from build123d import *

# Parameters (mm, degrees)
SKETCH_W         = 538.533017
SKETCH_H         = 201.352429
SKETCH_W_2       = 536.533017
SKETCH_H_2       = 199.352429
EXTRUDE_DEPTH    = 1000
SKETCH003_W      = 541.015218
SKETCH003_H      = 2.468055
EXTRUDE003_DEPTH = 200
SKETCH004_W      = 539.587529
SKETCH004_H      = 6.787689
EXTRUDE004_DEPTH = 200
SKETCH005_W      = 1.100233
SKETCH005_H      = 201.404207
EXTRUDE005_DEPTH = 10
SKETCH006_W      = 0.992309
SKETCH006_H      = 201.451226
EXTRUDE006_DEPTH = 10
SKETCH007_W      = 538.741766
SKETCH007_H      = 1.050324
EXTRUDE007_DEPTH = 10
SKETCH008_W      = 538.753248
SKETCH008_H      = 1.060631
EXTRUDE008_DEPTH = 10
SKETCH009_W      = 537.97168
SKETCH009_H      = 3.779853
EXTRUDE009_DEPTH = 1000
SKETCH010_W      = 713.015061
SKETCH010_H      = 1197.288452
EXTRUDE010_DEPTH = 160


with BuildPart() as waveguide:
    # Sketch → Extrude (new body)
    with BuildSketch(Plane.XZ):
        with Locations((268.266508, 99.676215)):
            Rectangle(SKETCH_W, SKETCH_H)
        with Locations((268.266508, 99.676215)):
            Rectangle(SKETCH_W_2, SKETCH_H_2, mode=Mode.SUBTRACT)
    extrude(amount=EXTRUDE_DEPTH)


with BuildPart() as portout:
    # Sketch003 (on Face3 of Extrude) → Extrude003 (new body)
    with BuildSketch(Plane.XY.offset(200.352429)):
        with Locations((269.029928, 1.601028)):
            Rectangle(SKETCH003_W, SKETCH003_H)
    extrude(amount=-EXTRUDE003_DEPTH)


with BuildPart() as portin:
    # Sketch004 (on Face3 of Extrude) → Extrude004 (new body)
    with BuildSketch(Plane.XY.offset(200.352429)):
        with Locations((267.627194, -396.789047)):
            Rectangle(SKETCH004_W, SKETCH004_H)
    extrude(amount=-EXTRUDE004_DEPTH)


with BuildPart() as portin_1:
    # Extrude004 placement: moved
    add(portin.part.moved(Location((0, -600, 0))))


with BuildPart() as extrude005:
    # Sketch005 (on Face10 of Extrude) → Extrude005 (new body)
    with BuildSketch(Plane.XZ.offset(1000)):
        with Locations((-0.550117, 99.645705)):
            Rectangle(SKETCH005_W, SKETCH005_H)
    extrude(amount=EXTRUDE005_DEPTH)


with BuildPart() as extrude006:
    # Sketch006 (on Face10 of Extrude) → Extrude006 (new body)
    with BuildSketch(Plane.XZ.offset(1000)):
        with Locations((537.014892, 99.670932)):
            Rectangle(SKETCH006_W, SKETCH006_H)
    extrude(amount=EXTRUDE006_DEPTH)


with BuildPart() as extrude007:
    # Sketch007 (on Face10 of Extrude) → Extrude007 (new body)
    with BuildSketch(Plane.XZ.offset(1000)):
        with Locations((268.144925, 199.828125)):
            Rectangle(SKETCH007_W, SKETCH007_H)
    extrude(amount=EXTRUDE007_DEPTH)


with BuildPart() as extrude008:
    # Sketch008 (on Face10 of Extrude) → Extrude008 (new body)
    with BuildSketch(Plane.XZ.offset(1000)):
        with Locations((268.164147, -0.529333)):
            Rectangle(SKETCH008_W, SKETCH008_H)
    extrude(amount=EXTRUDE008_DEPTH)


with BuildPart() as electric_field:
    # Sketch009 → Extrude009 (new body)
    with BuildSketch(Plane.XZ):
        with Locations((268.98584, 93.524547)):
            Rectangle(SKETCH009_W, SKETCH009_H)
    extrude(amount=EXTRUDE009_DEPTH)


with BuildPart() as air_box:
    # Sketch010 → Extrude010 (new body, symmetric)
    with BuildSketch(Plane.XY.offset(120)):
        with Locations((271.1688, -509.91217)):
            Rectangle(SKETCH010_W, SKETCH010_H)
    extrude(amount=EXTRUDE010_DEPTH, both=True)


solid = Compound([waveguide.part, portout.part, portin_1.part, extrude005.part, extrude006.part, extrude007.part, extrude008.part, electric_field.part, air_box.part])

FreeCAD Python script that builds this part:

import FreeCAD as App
import Part
import Sketcher
Q = App.Units.Quantity

doc = App.newDocument("Part")
body = doc.addObject("PartDesign::Body", "Body")

# Sketch on XZ plane
sketch1 = body.newObject("Sketcher::SketchObject", "Sketch")
sketch1.AttachmentSupport = (doc.getObject("XZ_Plane"), [""])
sketch1.MapMode = "FlatFace"
sketch1.addGeometry([
    Part.LineSegment(App.Vector(-1, 200, 0), App.Vector(-1, -1, 0)),  # 0
    Part.LineSegment(App.Vector(-1, -1, 0), App.Vector(538, -1, 0)),  # 1
    Part.LineSegment(App.Vector(538, -1, 0), App.Vector(538, 200, 0)),  # 2
    Part.LineSegment(App.Vector(538, 200, 0), App.Vector(-1, 200, 0)),  # 3
    Part.LineSegment(App.Vector(537, 0, 0), App.Vector(0, 0, 0)),  # 4
    Part.LineSegment(App.Vector(0, 0, 0), App.Vector(0, 199, 0)),  # 5
    Part.LineSegment(App.Vector(0, 199, 0), App.Vector(537, 199, 0)),  # 6
    Part.LineSegment(App.Vector(537, 199, 0), App.Vector(537, 0, 0)),  # 7
], False)
sketch1.addConstraint([
    Sketcher.Constraint("Coincident", 0, 2, 1, 1),
    Sketcher.Constraint("Coincident", 1, 2, 2, 1),
    Sketcher.Constraint("Coincident", 2, 2, 3, 1),
    Sketcher.Constraint("Coincident", 3, 2, 0, 1),
    Sketcher.Constraint("Coincident", 4, 2, 5, 1),
    Sketcher.Constraint("Coincident", 5, 2, 6, 1),
    Sketcher.Constraint("Coincident", 6, 2, 7, 1),
    Sketcher.Constraint("Coincident", 7, 2, 4, 1),
    Sketcher.Constraint("Vertical", 0),
    Sketcher.Constraint("Horizontal", 1),
    Sketcher.Constraint("Vertical", 2),
    Sketcher.Constraint("Horizontal", 3),
    Sketcher.Constraint("Horizontal", 4),
    Sketcher.Constraint("Vertical", 5),
    Sketcher.Constraint("Horizontal", 6),
    Sketcher.Constraint("Vertical", 7),
    Sketcher.Constraint("Coincident", 4, 2, -1, 1),
    Sketcher.Constraint("DistanceX", 0, 2, -1, 1, Q("1.000001 mm")),
    Sketcher.Constraint("DistanceY", 0, 2, -1, 1, Q("1 mm")),
    Sketcher.Constraint("DistanceY", 5, 2, 3, 2, Q("1 mm")),
    Sketcher.Constraint("DistanceX", 6, 2, 2, 2, Q("1 mm")),
    Sketcher.Constraint("DistanceY", 0, 2, 0, 1, Q("201.352429 mm")),
    Sketcher.Constraint("DistanceX", 1, 1, 1, 2, Q("538.533017 mm")),
])
pad1 = body.newObject("PartDesign::Pad", "Pad")
pad1.Profile = sketch1
pad1.Length = 1000
body2 = doc.addObject("PartDesign::Body", "Body001")

# Sketch on XY plane
sketch2 = body2.newObject("Sketcher::SketchObject", "Sketch001")
sketch2.AttachmentSupport = (doc.getObject("XY_Plane001"), [""])
sketch2.MapMode = "FlatFace"
sketch2.AttachmentOffset = App.Placement(App.Vector(0, 0, 200.352429), App.Rotation())
sketch2.addGeometry([
    Part.LineSegment(App.Vector(-1.5, 2.8, 0), App.Vector(-1.5, 0.4, 0)),
    Part.LineSegment(App.Vector(-1.5, 0.4, 0), App.Vector(539.5, 0.4, 0)),
    Part.LineSegment(App.Vector(539.5, 0.4, 0), App.Vector(539.5, 2.8, 0)),
    Part.LineSegment(App.Vector(539.5, 2.8, 0), App.Vector(-1.5, 2.8, 0)),
], False)
sketch2.addConstraint([
    Sketcher.Constraint("Coincident", 0, 2, 1, 1),
    Sketcher.Constraint("Coincident", 1, 2, 2, 1),
    Sketcher.Constraint("Coincident", 2, 2, 3, 1),
    Sketcher.Constraint("Coincident", 3, 2, 0, 1),
    Sketcher.Constraint("Vertical", 0),
    Sketcher.Constraint("Horizontal", 1),
    Sketcher.Constraint("Vertical", 2),
    Sketcher.Constraint("Horizontal", 3),
    Sketcher.Constraint("DistanceY", -1, 1, 0, 2, Q("0.367001 mm")),
    Sketcher.Constraint("DistanceX", 1, 1, 1, 2, Q("541.015218 mm")),
    Sketcher.Constraint("DistanceY", 0, 2, 0, 1, Q("2.468055 mm")),
    Sketcher.Constraint("DistanceX", 0, 2, -1, 1, Q("1.477681 mm")),
])
pad2 = body2.newObject("PartDesign::Pad", "Pad001")
pad2.Profile = sketch2
pad2.Length = 200
pad2.Reversed = True
body3 = doc.addObject("PartDesign::Body", "Body002")

# Sketch on XY plane
sketch3 = body3.newObject("Sketcher::SketchObject", "Sketch002")
sketch3.AttachmentSupport = (doc.getObject("XY_Plane002"), [""])
sketch3.MapMode = "FlatFace"
sketch3.AttachmentOffset = App.Placement(App.Vector(0, 0, 200.352429), App.Rotation())
sketch3.addGeometry([
    Part.LineSegment(App.Vector(-2, -393, 0), App.Vector(-2, -400, 0)),
    Part.LineSegment(App.Vector(-2, -400, 0), App.Vector(537, -400, 0)),
    Part.LineSegment(App.Vector(537, -400, 0), App.Vector(537, -393, 0)),
    Part.LineSegment(App.Vector(537, -393, 0), App.Vector(-2, -393, 0)),
], False)
sketch3.addConstraint([
    Sketcher.Constraint("Coincident", 0, 2, 1, 1),
    Sketcher.Constraint("Coincident", 1, 2, 2, 1),
    Sketcher.Constraint("Coincident", 2, 2, 3, 1),
    Sketcher.Constraint("Coincident", 3, 2, 0, 1),
    Sketcher.Constraint("Vertical", 0),
    Sketcher.Constraint("Horizontal", 1),
    Sketcher.Constraint("Vertical", 2),
    Sketcher.Constraint("Horizontal", 3),
    Sketcher.Constraint("DistanceX", 1, 1, 1, 2, Q("539.587529 mm")),
    Sketcher.Constraint("DistanceY", 0, 2, 0, 1, Q("6.787689 mm")),
    Sketcher.Constraint("DistanceX", 0, 2, -1, 1, Q("2.166571 mm")),
    Sketcher.Constraint("DistanceY", 0, 2, -1, 1, Q("400.182891 mm")),
])
pad3 = body3.newObject("PartDesign::Pad", "Pad002")
pad3.Profile = sketch3
pad3.Length = 200
pad3.Reversed = True
body4 = doc.addObject("PartDesign::Body", "Body003")
doc.recompute()

body3.Placement = App.Placement(App.Vector(0, -600, 0), App.Rotation(App.Vector(0, 0, 1), 0))
boolean = body4.newObject("PartDesign::Boolean", "Boolean")
boolean.Type = "Fuse"
boolean.addObjects([body3])
body5 = doc.addObject("PartDesign::Body", "Body004")

# Sketch on XZ plane
sketch4 = body5.newObject("Sketcher::SketchObject", "Sketch003")
sketch4.AttachmentSupport = (doc.getObject("XZ_Plane004"), [""])
sketch4.MapMode = "FlatFace"
sketch4.AttachmentOffset = App.Placement(App.Vector(0, 0, 1000), App.Rotation())
sketch4.addGeometry([
    Part.LineSegment(App.Vector(-1.1, 200.3, 0), App.Vector(-1.1, -1.1, 0)),
    Part.LineSegment(App.Vector(-1.1, -1.1, 0), App.Vector(0, -1.1, 0)),
    Part.LineSegment(App.Vector(0, -1.1, 0), App.Vector(0, 200.3, 0)),
    Part.LineSegment(App.Vector(0, 200.3, 0), App.Vector(-1.1, 200.3, 0)),
], False)
sketch4.addConstraint([
    Sketcher.Constraint("Coincident", 0, 2, 1, 1),
    Sketcher.Constraint("Coincident", 1, 2, 2, 1),
    Sketcher.Constraint("Coincident", 2, 2, 3, 1),
    Sketcher.Constraint("Coincident", 3, 2, 0, 1),
    Sketcher.Constraint("Vertical", 0),
    Sketcher.Constraint("Horizontal", 1),
    Sketcher.Constraint("Vertical", 2),
    Sketcher.Constraint("Horizontal", 3),
    Sketcher.Constraint("PointOnObject", 1, 2, -2),
    Sketcher.Constraint("DistanceY", 0, 2, -1, 1, Q("1.056399 mm")),
    Sketcher.Constraint("DistanceX", 1, 1, 1, 2, Q("1.100233 mm")),
    Sketcher.Constraint("DistanceY", 0, 2, 0, 1, Q("201.404207 mm")),
])
pad4 = body5.newObject("PartDesign::Pad", "Pad003")
pad4.Profile = sketch4
pad4.Length = 10
body6 = doc.addObject("PartDesign::Body", "Body005")

# Sketch on XZ plane
sketch5 = body6.newObject("Sketcher::SketchObject", "Sketch004")
sketch5.AttachmentSupport = (doc.getObject("XZ_Plane005"), [""])
sketch5.MapMode = "FlatFace"
sketch5.AttachmentOffset = App.Placement(App.Vector(0, 0, 1000), App.Rotation())
sketch5.addGeometry([
    Part.LineSegment(App.Vector(536.5, 200.4, 0), App.Vector(536.5, -1.1, 0)),
    Part.LineSegment(App.Vector(536.5, -1.1, 0), App.Vector(537.5, -1.1, 0)),
    Part.LineSegment(App.Vector(537.5, -1.1, 0), App.Vector(537.5, 200.4, 0)),
    Part.LineSegment(App.Vector(537.5, 200.4, 0), App.Vector(536.5, 200.4, 0)),
], False)
sketch5.addConstraint([
    Sketcher.Constraint("Coincident", 0, 2, 1, 1),
    Sketcher.Constraint("Coincident", 1, 2, 2, 1),
    Sketcher.Constraint("Coincident", 2, 2, 3, 1),
    Sketcher.Constraint("Coincident", 3, 2, 0, 1),
    Sketcher.Constraint("Vertical", 0),
    Sketcher.Constraint("Horizontal", 1),
    Sketcher.Constraint("Vertical", 2),
    Sketcher.Constraint("Horizontal", 3),
    Sketcher.Constraint("DistanceX", 1, 1, 1, 2, Q("0.992309 mm")),
    Sketcher.Constraint("DistanceY", 0, 2, 0, 1, Q("201.451226 mm")),
    Sketcher.Constraint("DistanceY", 0, 2, -1, 1, Q("1.054681 mm")),
    Sketcher.Constraint("DistanceX", -1, 1, 0, 2, Q("536.518738 mm")),
])
pad5 = body6.newObject("PartDesign::Pad", "Pad004")
pad5.Profile = sketch5
pad5.Length = 10
body7 = doc.addObject("PartDesign::Body", "Body006")

# Sketch on XZ plane
sketch6 = body7.newObject("Sketcher::SketchObject", "Sketch005")
sketch6.AttachmentSupport = (doc.getObject("XZ_Plane006"), [""])
sketch6.MapMode = "FlatFace"
sketch6.AttachmentOffset = App.Placement(App.Vector(0, 0, 1000), App.Rotation())
sketch6.addGeometry([
    Part.LineSegment(App.Vector(-1.2, 200.4, 0), App.Vector(-1.2, 199.3, 0)),
    Part.LineSegment(App.Vector(-1.2, 199.3, 0), App.Vector(537.5, 199.3, 0)),
    Part.LineSegment(App.Vector(537.5, 199.3, 0), App.Vector(537.5, 200.4, 0)),
    Part.LineSegment(App.Vector(537.5, 200.4, 0), App.Vector(-1.2, 200.4, 0)),
], False)
sketch6.addConstraint([
    Sketcher.Constraint("Coincident", 0, 2, 1, 1),
    Sketcher.Constraint("Coincident", 1, 2, 2, 1),
    Sketcher.Constraint("Coincident", 2, 2, 3, 1),
    Sketcher.Constraint("Coincident", 3, 2, 0, 1),
    Sketcher.Constraint("Vertical", 0),
    Sketcher.Constraint("Horizontal", 1),
    Sketcher.Constraint("Vertical", 2),
    Sketcher.Constraint("Horizontal", 3),
    Sketcher.Constraint("DistanceX", 1, 1, 1, 2, Q("538.741766 mm")),
    Sketcher.Constraint("DistanceY", 0, 2, 0, 1, Q("1.050324 mm")),
    Sketcher.Constraint("DistanceX", 0, 2, -1, 1, Q("1.225958 mm")),
    Sketcher.Constraint("DistanceY", -1, 1, 0, 2, Q("199.302963 mm")),
])
pad6 = body7.newObject("PartDesign::Pad", "Pad005")
pad6.Profile = sketch6
pad6.Length = 10
body8 = doc.addObject("PartDesign::Body", "Body007")

# Sketch on XZ plane
sketch7 = body8.newObject("Sketcher::SketchObject", "Sketch006")
sketch7.AttachmentSupport = (doc.getObject("XZ_Plane007"), [""])
sketch7.MapMode = "FlatFace"
sketch7.AttachmentOffset = App.Placement(App.Vector(0, 0, 1000), App.Rotation())
sketch7.addGeometry([
    Part.LineSegment(App.Vector(-1.2, 0, 0), App.Vector(-1.2, -1.1, 0)),
    Part.LineSegment(App.Vector(-1.2, -1.1, 0), App.Vector(537.5, -1.1, 0)),
    Part.LineSegment(App.Vector(537.5, -1.1, 0), App.Vector(537.5, 0, 0)),
    Part.LineSegment(App.Vector(537.5, 0, 0), App.Vector(-1.2, 0, 0)),
], False)
sketch7.addConstraint([
    Sketcher.Constraint("Coincident", 0, 2, 1, 1),
    Sketcher.Constraint("Coincident", 1, 2, 2, 1),
    Sketcher.Constraint("Coincident", 2, 2, 3, 1),
    Sketcher.Constraint("Coincident", 3, 2, 0, 1),
    Sketcher.Constraint("Vertical", 0),
    Sketcher.Constraint("Horizontal", 1),
    Sketcher.Constraint("Vertical", 2),
    Sketcher.Constraint("Horizontal", 3),
    Sketcher.Constraint("DistanceX", 1, 1, 1, 2, Q("538.753248 mm")),
    Sketcher.Constraint("DistanceY", 0, 2, 0, 1, Q("1.060631 mm")),
    Sketcher.Constraint("DistanceY", 0, 2, -1, 1, Q("1.059648 mm")),
    Sketcher.Constraint("DistanceX", -1, 1, 1, 2, Q("537.540771 mm")),
])
pad7 = body8.newObject("PartDesign::Pad", "Pad006")
pad7.Profile = sketch7
pad7.Length = 10
body9 = doc.addObject("PartDesign::Body", "Body008")

# Sketch on XZ plane
sketch8 = body9.newObject("Sketcher::SketchObject", "Sketch007")
sketch8.AttachmentSupport = (doc.getObject("XZ_Plane008"), [""])
sketch8.MapMode = "FlatFace"
sketch8.addGeometry([
    Part.LineSegment(App.Vector(0, 95.4, 0), App.Vector(0, 91.6, 0)),
    Part.LineSegment(App.Vector(0, 91.6, 0), App.Vector(538, 91.6, 0)),
    Part.LineSegment(App.Vector(538, 91.6, 0), App.Vector(538, 95.4, 0)),
    Part.LineSegment(App.Vector(538, 95.4, 0), App.Vector(0, 95.4, 0)),
], False)
sketch8.addConstraint([
    Sketcher.Constraint("Coincident", 0, 2, 1, 1),
    Sketcher.Constraint("Coincident", 1, 2, 2, 1),
    Sketcher.Constraint("Coincident", 2, 2, 3, 1),
    Sketcher.Constraint("Coincident", 3, 2, 0, 1),
    Sketcher.Constraint("Vertical", 0),
    Sketcher.Constraint("Horizontal", 1),
    Sketcher.Constraint("Vertical", 2),
    Sketcher.Constraint("Horizontal", 3),
    Sketcher.Constraint("PointOnObject", 0, 2, -2),
    Sketcher.Constraint("DistanceX", 1, 1, 1, 2, Q("537.97168 mm")),
    Sketcher.Constraint("DistanceY", 0, 2, 0, 1, Q("3.779853 mm")),
    Sketcher.Constraint("DistanceY", -1, 1, 0, 2, Q("91.63462 mm")),
])
pad8 = body9.newObject("PartDesign::Pad", "Pad007")
pad8.Profile = sketch8
pad8.Length = 1000
body10 = doc.addObject("PartDesign::Body", "Body009")

# Sketch on XY plane
sketch9 = body10.newObject("Sketcher::SketchObject", "Sketch008")
sketch9.AttachmentSupport = (doc.getObject("XY_Plane009"), [""])
sketch9.MapMode = "FlatFace"
sketch9.AttachmentOffset = App.Placement(App.Vector(0, 0, 120), App.Rotation())
sketch9.addGeometry([
    Part.LineSegment(App.Vector(-85, 89, 0), App.Vector(-85, -1109, 0)),
    Part.LineSegment(App.Vector(-85, -1109, 0), App.Vector(628, -1109, 0)),
    Part.LineSegment(App.Vector(628, -1109, 0), App.Vector(628, 89, 0)),
    Part.LineSegment(App.Vector(628, 89, 0), App.Vector(-85, 89, 0)),
], False)
sketch9.addConstraint([
    Sketcher.Constraint("Coincident", 0, 2, 1, 1),
    Sketcher.Constraint("Coincident", 1, 2, 2, 1),
    Sketcher.Constraint("Coincident", 2, 2, 3, 1),
    Sketcher.Constraint("Coincident", 3, 2, 0, 1),
    Sketcher.Constraint("Vertical", 0),
    Sketcher.Constraint("Horizontal", 1),
    Sketcher.Constraint("Vertical", 2),
    Sketcher.Constraint("Horizontal", 3),
    Sketcher.Constraint("DistanceX", 1, 1, 1, 2, Q("713.015061 mm")),
    Sketcher.Constraint("DistanceY", 0, 2, 0, 1, Q("1197.288452 mm")),
    Sketcher.Constraint("DistanceX", 0, 2, -1, 1, Q("85.33873 mm")),
    Sketcher.Constraint("DistanceY", 0, 2, -1, 1, Q("1108.556396 mm")),
])
pad9 = body10.newObject("PartDesign::Pad", "Pad008")
pad9.Profile = sketch9
pad9.Length = 320
pad9.Midplane = True

doc.recompute()
